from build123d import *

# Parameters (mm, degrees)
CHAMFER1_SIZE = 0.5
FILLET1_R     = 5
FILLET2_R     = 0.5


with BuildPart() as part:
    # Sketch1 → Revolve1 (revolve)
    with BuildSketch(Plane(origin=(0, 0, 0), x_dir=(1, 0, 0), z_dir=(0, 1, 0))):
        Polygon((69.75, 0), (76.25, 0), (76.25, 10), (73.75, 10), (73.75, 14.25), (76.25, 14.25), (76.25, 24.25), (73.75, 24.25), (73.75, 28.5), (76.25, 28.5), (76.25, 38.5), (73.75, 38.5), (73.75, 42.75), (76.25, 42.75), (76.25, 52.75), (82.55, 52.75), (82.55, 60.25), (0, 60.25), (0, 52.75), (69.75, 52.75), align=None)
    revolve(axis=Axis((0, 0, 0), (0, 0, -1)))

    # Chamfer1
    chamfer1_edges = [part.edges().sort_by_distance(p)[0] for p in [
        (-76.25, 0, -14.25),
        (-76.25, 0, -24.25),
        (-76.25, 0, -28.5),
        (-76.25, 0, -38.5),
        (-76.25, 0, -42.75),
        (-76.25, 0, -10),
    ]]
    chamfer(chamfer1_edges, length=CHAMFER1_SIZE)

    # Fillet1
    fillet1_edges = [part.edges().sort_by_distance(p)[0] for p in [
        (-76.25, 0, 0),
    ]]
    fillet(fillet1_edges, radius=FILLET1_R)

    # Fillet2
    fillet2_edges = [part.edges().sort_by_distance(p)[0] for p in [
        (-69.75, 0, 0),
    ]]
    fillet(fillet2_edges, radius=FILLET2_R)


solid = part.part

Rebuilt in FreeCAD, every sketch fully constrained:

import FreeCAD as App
import Part
import Sketcher
Q = App.Units.Quantity


def edges_at(feature, points):
    """Names of the edges that pass closest to the given points."""
    edges = feature.Shape.Edges
    near = lambda p: min(range(len(edges)), key=lambda i: edges[i].distToShape(Part.Vertex(*p))[0])
    return sorted({f"Edge{near(p) + 1}" for p in points})


def add_polygon(sketch, points):
    """Adds a closed chain of lines whose ends are joined by coincident constraints."""
    first, n = sketch.GeometryCount, len(points)
    for a, b in zip(points, points[1:] + points[:1]):
        sketch.addGeometry(Part.LineSegment(App.Vector(*a, 0), App.Vector(*b, 0)), False)
    for i in range(n):
        sketch.addConstraint(Sketcher.Constraint("Coincident", first + i, 2, first + (i + 1) % n, 1))

doc = App.newDocument("Part")
params = doc.addObject("Spreadsheet::Sheet", "Params")
for row, (alias, value) in enumerate([
    ("sketch1_height", "10 mm"),
    ("sketch1_width", "6.5 mm"),
    ("sketch1_width2", "2.5 mm"),
    ("sketch1_width3", "6.3 mm"),
    ("sketch1_height2", "7.5 mm"),
    ("revolution_angle", "360 deg"),
    ("chamfer_size", "0.5 mm"),
    ("fillet_radius", "5 mm"),
    ("fillet2_radius", "0.5 mm"),
], start=1):
    params.set(f"A{row}", alias)
    params.set(f"B{row}", "=" + value)
    params.setAlias(f"B{row}", alias)

body = doc.addObject("PartDesign::Body", "Body")

sketch1 = body.newObject("Sketcher::SketchObject", "Sketch")
sketch1.AttachmentSupport = (doc.getObject("XZ_Plane"), [""])
sketch1.MapMode = "FlatFace"
add_polygon(sketch1, [(69.8, 0), (76.2, 0), (76.2, -10), (73.8, -10), (73.8, -14.2), (76.2, -14.2), (76.2, -24.2), (73.8, -24.2), (73.8, -28.5), (76.2, -28.5), (76.2, -38.5), (73.8, -38.5), (73.8, -42.8), (76.2, -42.8), (76.2, -52.8), (82.5, -52.8), (82.5, -60.2), (0, -60.2), (0, -52.8), (69.8, -52.8)])
sketch1.addConstraint([
    Sketcher.Constraint("Horizontal", 0),
    Sketcher.Constraint("Vertical", 1),
    Sketcher.Constraint("Horizontal", 2),
    Sketcher.Constraint("Vertical", 3),
    Sketcher.Constraint("Horizontal", 4),
    Sketcher.Constraint("Vertical", 5),
    Sketcher.Constraint("Horizontal", 6),
    Sketcher.Constraint("Vertical", 7),
    Sketcher.Constraint("Horizontal", 8),
    Sketcher.Constraint("Vertical", 9),
    Sketcher.Constraint("Horizontal", 10),
    Sketcher.Constraint("Vertical", 11),
    Sketcher.Constraint("Horizontal", 12),
    Sketcher.Constraint("Vertical", 13),
    Sketcher.Constraint("Horizontal", 14),
    Sketcher.Constraint("Vertical", 15),
    Sketcher.Constraint("Horizontal", 16),
    Sketcher.Constraint("Vertical", 17),
    Sketcher.Constraint("Horizontal", 18),
    Sketcher.Constraint("Vertical", 19),
    Sketcher.Constraint("PointOnObject", 0, 2, -1),
    Sketcher.Constraint("PointOnObject", 16, 2, -2),
    Sketcher.Constraint("Horizontal", 14, 2, 17, 2),
    Sketcher.Constraint("Vertical", 1, 2, 4, 2),
    Sketcher.Constraint("Vertical", 3, 2, 6, 2),
    Sketcher.Constraint("Vertical", 5, 2, 8, 2),
    Sketcher.Constraint("Vertical", 7, 2, 10, 2),
    Sketcher.Constraint("Vertical", 9, 2, 12, 2),
    Sketcher.Constraint("Equal", 1, 5),
    Sketcher.Constraint("Equal", 3, 7),
    Sketcher.Constraint("Equal", 5, 9),
    Sketcher.Constraint("Equal", 7, 11),
    Sketcher.Constraint("Equal", 9, 13),
    Sketcher.Constraint("DistanceY", 1, 2, 1, 1, Q("10 mm")),
    Sketcher.Constraint("DistanceX", 0, 1, 0, 2, Q("6.5 mm")),
    Sketcher.Constraint("DistanceX", 2, 2, 2, 1, Q("2.5 mm")),
    Sketcher.Constraint("DistanceX", 14, 1, 14, 2, Q("6.3 mm")),
    Sketcher.Constraint("DistanceY", 15, 2, 15, 1, Q("7.5 mm")),
    Sketcher.Constraint("DistanceX", 16, 2, 16, 1, Q("82.55 mm")),
    Sketcher.Constraint("DistanceY", 3, 2, 3, 1, Q("4.25 mm")),
])
sketch1.setExpression("Constraints[53]", "Params.sketch1_height")
sketch1.setExpression("Constraints[54]", "Params.sketch1_width")
sketch1.setExpression("Constraints[55]", "Params.sketch1_width2")
sketch1.setExpression("Constraints[56]", "Params.sketch1_width3")
sketch1.setExpression("Constraints[57]", "Params.sketch1_height2")
revolution = body.newObject("PartDesign::Revolution", "Revolution")
revolution.Profile = sketch1
revolution.ReferenceAxis = (sketch1, ["V_Axis"])
revolution.setExpression("Angle", "Params.revolution_angle")
doc.recompute()

chamfer = body.newObject("PartDesign::Chamfer", "Chamfer")
chamfer.Base = (revolution, edges_at(revolution, [
    (-76.25, 0, -14.25),
    (-76.25, 0, -24.25),
    (-76.25, 0, -28.5),
    (-76.25, 0, -38.5),
    (-76.25, 0, -42.75),
    (-76.25, 0, -10),
]))
chamfer.setExpression("Size", "Params.chamfer_size")
doc.recompute()

fillet = body.newObject("PartDesign::Fillet", "Fillet")
fillet.Base = (chamfer, edges_at(chamfer, [(-76.25, 0, 0)]))
fillet.setExpression("Radius", "Params.fillet_radius")
doc.recompute()

fillet2 = body.newObject("PartDesign::Fillet", "Fillet001")
fillet2.Base = (fillet, edges_at(fillet, [(-69.75, 0, 0)]))
fillet2.setExpression("Radius", "Params.fillet2_radius")

doc.recompute()
